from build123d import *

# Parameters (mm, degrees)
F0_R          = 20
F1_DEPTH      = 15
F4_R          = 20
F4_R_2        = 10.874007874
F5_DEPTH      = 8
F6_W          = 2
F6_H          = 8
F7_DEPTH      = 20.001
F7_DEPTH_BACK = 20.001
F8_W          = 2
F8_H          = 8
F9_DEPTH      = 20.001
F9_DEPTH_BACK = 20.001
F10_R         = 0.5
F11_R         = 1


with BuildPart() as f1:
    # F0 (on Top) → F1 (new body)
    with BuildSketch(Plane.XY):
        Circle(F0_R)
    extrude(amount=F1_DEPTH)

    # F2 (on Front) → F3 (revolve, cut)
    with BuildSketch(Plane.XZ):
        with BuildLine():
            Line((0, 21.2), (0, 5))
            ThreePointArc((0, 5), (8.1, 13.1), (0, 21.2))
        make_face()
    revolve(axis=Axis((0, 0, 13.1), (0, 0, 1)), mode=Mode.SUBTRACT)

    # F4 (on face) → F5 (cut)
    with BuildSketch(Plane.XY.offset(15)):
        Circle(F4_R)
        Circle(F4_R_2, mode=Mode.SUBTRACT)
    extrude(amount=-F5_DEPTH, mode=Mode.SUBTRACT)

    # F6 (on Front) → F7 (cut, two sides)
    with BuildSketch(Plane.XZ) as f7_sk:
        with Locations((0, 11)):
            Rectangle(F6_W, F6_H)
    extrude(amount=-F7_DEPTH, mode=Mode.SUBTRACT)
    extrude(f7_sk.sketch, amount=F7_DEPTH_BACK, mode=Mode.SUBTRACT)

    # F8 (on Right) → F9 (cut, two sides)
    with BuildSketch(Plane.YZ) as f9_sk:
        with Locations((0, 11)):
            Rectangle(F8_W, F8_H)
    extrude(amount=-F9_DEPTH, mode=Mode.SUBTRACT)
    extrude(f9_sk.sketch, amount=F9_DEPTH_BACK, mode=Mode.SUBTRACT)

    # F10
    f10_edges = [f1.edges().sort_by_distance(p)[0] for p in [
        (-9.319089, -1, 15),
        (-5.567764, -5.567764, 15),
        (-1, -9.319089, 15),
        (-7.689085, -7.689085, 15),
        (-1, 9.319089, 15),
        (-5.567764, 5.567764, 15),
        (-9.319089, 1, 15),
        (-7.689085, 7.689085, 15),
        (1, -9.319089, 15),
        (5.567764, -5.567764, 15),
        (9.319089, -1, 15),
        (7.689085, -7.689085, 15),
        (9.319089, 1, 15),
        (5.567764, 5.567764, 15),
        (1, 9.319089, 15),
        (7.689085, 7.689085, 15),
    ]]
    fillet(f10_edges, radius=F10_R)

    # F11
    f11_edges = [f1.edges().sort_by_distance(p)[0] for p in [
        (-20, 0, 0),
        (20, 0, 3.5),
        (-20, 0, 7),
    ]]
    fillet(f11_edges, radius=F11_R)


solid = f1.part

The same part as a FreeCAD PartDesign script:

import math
import FreeCAD as App
import Part
import Sketcher

V = App.Vector


def edges_at(feature, points):
    """Names of the edges that pass closest to the given points."""
    edges = feature.Shape.Edges
    near = lambda p: min(range(len(edges)), key=lambda i: edges[i].distToShape(Part.Vertex(*p))[0])
    return sorted({f"Edge{near(p) + 1}" for p in points})


def add_polygon(sketch, points):
    """Adds a closed chain of lines whose ends are joined by coincident constraints."""
    first, n = sketch.GeometryCount, len(points)
    for a, b in zip(points, points[1:] + points[:1]):
        sketch.addGeometry(Part.LineSegment(App.Vector(*a, 0), App.Vector(*b, 0)), False)
    for i in range(n):
        sketch.addConstraint(Sketcher.Constraint("Coincident", first + i, 2, first + (i + 1) % n, 1))

doc = App.newDocument("Part")
body = doc.addObject("PartDesign::Body", "Body")

sketch1 = body.newObject("Sketcher::SketchObject", "Sketch")
sketch1.AttachmentSupport = (doc.getObject("XY_Plane"), [""])
sketch1.MapMode = "FlatFace"
sketch1.addGeometry(Part.Circle(V(0, 0, 0), V(0, 0, 1), 20), False)
sketch1.addConstraint([
    Sketcher.Constraint("Coincident", 0, 3, -1, 1),
    Sketcher.Constraint("Diameter", 0, 40.0),
])
pad1 = body.newObject("PartDesign::Pad", "Pad")
pad1.Profile = sketch1
pad1.Length = 15

sketch2 = body.newObject("Sketcher::SketchObject", "Sketch001")
sketch2.AttachmentSupport = (doc.getObject("XZ_Plane"), [""])
sketch2.MapMode = "FlatFace"
sketch2.addGeometry([
    Part.LineSegment(V(0, 21.2, 0), V(0, 5, 0)),
    Part.ArcOfCircle(Part.Circle(V(0, 13.1, 0), V(0, 0, 1), 8.1), math.radians(-90), math.radians(90)),
], False)
sketch2.addConstraint([
    Sketcher.Constraint("Coincident", 0, 1, 1, 2),
    Sketcher.Constraint("Coincident", 1, 1, 0, 2),
    Sketcher.Constraint("Vertical", 0),
    Sketcher.Constraint("PointOnObject", 1, 3, -2),
    Sketcher.Constraint("PointOnObject", 0, 1, -2),
    Sketcher.Constraint("Radius", 1, 8.1),
    Sketcher.Constraint("DistanceY", -1, 1, 1, 1, 5.0),
])
groove = body.newObject("PartDesign::Groove", "Groove")
groove.Profile = sketch2
groove.ReferenceAxis = (sketch2, ["V_Axis"])
groove.Angle = 360

sketch3 = body.newObject("Sketcher::SketchObject", "Sketch002")
sketch3.AttachmentSupport = (doc.getObject("XY_Plane"), [""])
sketch3.MapMode = "FlatFace"
sketch3.AttachmentOffset = App.Placement(V(0, 0, 15), App.Rotation())
sketch3.addGeometry([
    Part.Circle(V(0, 0, 0), V(0, 0, 1), 20),
    Part.Circle(V(0, 0, 0), V(0, 0, 1), 10.874008),
], False)
sketch3.addConstraint([
    Sketcher.Constraint("Coincident", 0, 3, -1, 1),
    Sketcher.Constraint("Coincident", 1, 3, -1, 1),
    Sketcher.Constraint("Diameter", 0, 40.0),
    Sketcher.Constraint("Diameter", 1, 21.748016),
])
pocket1 = body.newObject("PartDesign::Pocket", "Pocket")
pocket1.Profile = sketch3
pocket1.Length = 8

sketch4 = body.newObject("Sketcher::SketchObject", "Sketch003")
sketch4.AttachmentSupport = (doc.getObject("XZ_Plane"), [""])
sketch4.MapMode = "FlatFace"
add_polygon(sketch4, [(-1, 15), (-1, 7), (1, 7), (1, 15)])
sketch4.addConstraint([
    Sketcher.Constraint("Vertical", 0),
    Sketcher.Constraint("Horizontal", 1),
    Sketcher.Constraint("Vertical", 2),
    Sketcher.Constraint("Horizontal", 3),
    Sketcher.Constraint("DistanceX", 1, 1, 1, 2, 2.0),
    Sketcher.Constraint("DistanceY", 0, 2, 0, 1, 8.0),
    Sketcher.Constraint("DistanceX", 0, 2, -1, 1, 1.0),
    Sketcher.Constraint("DistanceY", -1, 1, 0, 2, 7.0),
])
pocket2 = body.newObject("PartDesign::Pocket", "Pocket001")
pocket2.Profile = sketch4
pocket2.Type = "ThroughAll"
pocket2.Midplane = True

sketch5 = body.newObject("Sketcher::SketchObject", "Sketch004")
sketch5.AttachmentSupport = (doc.getObject("YZ_Plane"), [""])
sketch5.MapMode = "FlatFace"
add_polygon(sketch5, [(-1, 15), (-1, 7), (1, 7), (1, 15)])
sketch5.addConstraint([
    Sketcher.Constraint("Vertical", 0),
    Sketcher.Constraint("Horizontal", 1),
    Sketcher.Constraint("Vertical", 2),
    Sketcher.Constraint("Horizontal", 3),
    Sketcher.Constraint("DistanceX", 1, 1, 1, 2, 2.0),
    Sketcher.Constraint("DistanceY", 0, 2, 0, 1, 8.0),
    Sketcher.Constraint("DistanceX", 0, 2, -1, 1, 1.0),
    Sketcher.Constraint("DistanceY", -1, 1, 0, 2, 7.0),
])
pocket3 = body.newObject("PartDesign::Pocket", "Pocket002")
pocket3.Profile = sketch5
pocket3.Type = "ThroughAll"
pocket3.Midplane = True
doc.recompute()

fillet = body.newObject("PartDesign::Fillet", "Fillet")
fillet.Base = (pocket3, edges_at(pocket3, [
    (-9.319, -1, 15),
    (-5.568, -5.568, 15),
    (-1, -9.319, 15),
    (-7.689, -7.689, 15),
    (-1, 9.319, 15),
    (-5.568, 5.568, 15),
    (-9.319, 1, 15),
    (-7.689, 7.689, 15),
    (1, -9.319, 15),
    (5.568, -5.568, 15),
    (9.319, -1, 15),
    (7.689, -7.689, 15),
    (9.319, 1, 15),
    (5.568, 5.568, 15),
    (1, 9.319, 15),
    (7.689, 7.689, 15),
]))
fillet.Radius = 0.5
doc.recompute()

fillet2 = body.newObject("PartDesign::Fillet", "Fillet001")
fillet2.Base = (fillet, edges_at(fillet, [(-20, 0, 0), (20, 0, 3.5), (-20, 0, 7)]))
fillet2.Radius = 1

doc.recompute()
